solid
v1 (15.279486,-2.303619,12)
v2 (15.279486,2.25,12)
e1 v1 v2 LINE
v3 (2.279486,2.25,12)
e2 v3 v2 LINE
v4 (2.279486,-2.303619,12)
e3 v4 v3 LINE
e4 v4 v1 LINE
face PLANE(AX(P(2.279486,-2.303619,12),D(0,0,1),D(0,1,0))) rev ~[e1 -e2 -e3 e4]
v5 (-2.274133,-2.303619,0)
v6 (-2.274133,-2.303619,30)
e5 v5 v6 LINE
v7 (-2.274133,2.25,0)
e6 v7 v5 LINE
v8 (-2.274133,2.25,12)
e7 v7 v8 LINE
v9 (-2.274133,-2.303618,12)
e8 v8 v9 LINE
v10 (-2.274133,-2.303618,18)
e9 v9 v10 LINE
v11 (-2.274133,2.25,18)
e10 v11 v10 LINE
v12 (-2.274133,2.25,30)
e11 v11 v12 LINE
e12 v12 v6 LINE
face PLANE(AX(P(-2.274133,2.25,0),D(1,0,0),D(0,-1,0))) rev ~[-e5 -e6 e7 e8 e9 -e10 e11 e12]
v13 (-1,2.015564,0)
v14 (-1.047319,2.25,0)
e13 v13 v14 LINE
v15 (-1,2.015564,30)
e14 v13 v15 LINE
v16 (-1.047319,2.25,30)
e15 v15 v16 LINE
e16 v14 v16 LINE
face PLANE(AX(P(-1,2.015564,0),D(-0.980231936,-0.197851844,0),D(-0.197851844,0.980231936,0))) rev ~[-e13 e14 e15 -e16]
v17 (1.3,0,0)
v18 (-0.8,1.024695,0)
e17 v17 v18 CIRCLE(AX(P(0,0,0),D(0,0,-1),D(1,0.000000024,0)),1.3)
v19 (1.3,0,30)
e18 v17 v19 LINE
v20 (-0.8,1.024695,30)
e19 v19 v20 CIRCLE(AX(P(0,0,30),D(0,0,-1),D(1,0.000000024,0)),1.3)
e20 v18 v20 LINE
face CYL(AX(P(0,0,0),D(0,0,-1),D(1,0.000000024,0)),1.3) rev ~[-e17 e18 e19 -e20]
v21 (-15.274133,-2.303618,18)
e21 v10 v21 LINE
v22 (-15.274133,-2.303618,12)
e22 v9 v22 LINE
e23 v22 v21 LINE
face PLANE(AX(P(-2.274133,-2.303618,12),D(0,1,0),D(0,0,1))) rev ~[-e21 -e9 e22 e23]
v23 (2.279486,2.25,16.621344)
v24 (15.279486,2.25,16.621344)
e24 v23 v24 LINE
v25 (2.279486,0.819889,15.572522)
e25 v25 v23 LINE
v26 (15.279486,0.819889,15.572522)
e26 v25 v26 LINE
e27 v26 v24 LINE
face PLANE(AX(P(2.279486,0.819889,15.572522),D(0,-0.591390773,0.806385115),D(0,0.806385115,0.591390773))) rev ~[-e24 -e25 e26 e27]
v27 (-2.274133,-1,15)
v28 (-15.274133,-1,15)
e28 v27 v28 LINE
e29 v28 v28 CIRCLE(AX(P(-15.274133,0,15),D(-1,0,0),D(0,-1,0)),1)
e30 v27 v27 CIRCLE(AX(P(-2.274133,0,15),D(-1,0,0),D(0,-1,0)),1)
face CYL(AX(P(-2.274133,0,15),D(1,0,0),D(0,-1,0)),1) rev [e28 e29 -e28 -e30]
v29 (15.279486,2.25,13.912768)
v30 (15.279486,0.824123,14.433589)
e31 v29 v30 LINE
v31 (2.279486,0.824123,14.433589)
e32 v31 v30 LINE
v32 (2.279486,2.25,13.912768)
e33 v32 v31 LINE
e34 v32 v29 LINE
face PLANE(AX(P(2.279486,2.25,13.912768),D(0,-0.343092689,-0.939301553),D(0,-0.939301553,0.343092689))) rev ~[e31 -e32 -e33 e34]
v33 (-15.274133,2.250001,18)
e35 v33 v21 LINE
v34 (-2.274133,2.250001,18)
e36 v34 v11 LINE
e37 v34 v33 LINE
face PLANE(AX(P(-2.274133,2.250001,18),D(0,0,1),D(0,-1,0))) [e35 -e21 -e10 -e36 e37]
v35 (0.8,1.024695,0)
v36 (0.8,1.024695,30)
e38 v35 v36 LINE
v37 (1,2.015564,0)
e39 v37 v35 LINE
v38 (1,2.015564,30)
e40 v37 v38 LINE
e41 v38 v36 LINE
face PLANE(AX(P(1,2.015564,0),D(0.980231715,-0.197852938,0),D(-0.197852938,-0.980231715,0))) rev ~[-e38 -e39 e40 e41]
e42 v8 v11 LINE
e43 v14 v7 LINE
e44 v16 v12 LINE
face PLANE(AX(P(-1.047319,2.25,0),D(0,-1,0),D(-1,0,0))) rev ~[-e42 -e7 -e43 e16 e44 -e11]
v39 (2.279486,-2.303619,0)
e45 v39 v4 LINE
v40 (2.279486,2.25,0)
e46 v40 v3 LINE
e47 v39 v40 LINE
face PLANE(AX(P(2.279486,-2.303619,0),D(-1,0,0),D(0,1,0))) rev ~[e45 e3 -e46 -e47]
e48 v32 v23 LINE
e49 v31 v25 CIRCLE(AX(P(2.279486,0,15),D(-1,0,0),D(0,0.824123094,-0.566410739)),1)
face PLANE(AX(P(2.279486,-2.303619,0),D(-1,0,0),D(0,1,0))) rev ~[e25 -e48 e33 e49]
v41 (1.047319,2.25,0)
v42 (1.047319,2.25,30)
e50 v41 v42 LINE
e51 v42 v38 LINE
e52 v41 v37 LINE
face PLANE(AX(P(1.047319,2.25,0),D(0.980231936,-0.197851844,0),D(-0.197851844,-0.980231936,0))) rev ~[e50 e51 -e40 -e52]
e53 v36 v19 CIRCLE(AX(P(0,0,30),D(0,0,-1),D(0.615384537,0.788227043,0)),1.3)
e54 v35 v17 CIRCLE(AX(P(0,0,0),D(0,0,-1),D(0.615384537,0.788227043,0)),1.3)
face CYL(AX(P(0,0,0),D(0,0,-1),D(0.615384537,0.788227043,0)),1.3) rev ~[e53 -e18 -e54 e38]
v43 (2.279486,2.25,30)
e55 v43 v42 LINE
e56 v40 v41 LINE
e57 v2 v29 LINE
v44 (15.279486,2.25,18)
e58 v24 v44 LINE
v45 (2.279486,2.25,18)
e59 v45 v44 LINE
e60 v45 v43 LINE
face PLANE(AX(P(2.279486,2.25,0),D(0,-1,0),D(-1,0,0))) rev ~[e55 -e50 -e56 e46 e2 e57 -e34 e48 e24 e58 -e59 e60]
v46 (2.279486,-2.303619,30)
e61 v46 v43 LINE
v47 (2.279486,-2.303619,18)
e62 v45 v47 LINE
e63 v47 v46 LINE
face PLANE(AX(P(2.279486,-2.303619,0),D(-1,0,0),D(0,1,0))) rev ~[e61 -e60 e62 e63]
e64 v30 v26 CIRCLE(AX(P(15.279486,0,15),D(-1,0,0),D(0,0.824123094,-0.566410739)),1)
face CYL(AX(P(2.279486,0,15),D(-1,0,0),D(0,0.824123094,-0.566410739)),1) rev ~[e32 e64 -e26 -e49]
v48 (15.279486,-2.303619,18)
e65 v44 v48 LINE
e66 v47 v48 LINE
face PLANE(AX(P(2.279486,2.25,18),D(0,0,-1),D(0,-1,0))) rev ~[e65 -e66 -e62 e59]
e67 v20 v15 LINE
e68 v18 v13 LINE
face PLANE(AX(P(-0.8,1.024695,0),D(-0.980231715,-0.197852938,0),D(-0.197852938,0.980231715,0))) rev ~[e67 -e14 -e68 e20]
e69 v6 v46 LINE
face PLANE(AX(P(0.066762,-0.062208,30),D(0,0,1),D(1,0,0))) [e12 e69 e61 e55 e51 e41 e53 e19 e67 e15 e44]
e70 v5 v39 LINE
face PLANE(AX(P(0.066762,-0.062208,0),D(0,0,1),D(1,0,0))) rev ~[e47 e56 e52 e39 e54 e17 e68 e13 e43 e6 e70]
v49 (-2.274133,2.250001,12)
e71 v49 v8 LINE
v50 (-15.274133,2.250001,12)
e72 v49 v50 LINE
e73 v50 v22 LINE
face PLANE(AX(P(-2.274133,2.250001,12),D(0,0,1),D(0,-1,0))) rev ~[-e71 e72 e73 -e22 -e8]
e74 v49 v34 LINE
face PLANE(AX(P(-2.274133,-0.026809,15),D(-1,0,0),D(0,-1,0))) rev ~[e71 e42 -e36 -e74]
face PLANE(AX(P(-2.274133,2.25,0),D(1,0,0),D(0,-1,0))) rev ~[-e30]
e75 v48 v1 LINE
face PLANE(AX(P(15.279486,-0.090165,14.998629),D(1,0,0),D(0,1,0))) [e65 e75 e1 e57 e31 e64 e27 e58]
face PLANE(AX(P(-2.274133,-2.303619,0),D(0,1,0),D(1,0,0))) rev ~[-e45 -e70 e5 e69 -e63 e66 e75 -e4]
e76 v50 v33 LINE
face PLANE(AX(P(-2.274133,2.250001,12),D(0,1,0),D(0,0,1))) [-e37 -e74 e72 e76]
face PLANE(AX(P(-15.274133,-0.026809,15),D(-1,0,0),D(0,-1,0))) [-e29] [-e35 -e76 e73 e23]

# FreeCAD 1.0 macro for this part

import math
import FreeCAD as App
import Part
import Sketcher
Q = App.Units.Quantity

doc = App.newDocument("Part")
body = doc.addObject("PartDesign::Body", "Body")

sketch1 = body.newObject("Sketcher::SketchObject", "Sketch")
sketch1.AttachmentSupport = (doc.getObject("XY_Plane"), [""])
sketch1.MapMode = "FlatFace"
sketch1.addGeometry([
    Part.ArcOfCircle(Part.Circle(App.Vector(0, 0, 0), App.Vector(0, 0, 1), 1.3), math.radians(0), math.radians(52)),
    Part.ArcOfCircle(Part.Circle(App.Vector(0, 0, 0), App.Vector(0, 0, 1), 1.3), math.radians(128), math.radians(360)),
    Part.LineSegment(App.Vector(-0.8, 1.02, 0), App.Vector(-1, 2.02, 0)),
    Part.LineSegment(App.Vector(-1, 2.02, 0), App.Vector(-1.05, 2.25, 0)),
    Part.LineSegment(App.Vector(-1.05, 2.25, 0), App.Vector(-2.27, 2.25, 0)),
    Part.LineSegment(App.Vector(-2.27, 2.25, 0), App.Vector(-2.27, -2.3, 0)),
    Part.LineSegment(App.Vector(-2.27, -2.3, 0), App.Vector(2.28, -2.3, 0)),
    Part.LineSegment(App.Vector(2.28, -2.3, 0), App.Vector(2.28, 2.25, 0)),
    Part.LineSegment(App.Vector(2.28, 2.25, 0), App.Vector(1.05, 2.25, 0)),
    Part.LineSegment(App.Vector(1.05, 2.25, 0), App.Vector(1, 2.02, 0)),
    Part.LineSegment(App.Vector(1, 2.02, 0), App.Vector(0.8, 1.02, 0)),
], False)
sketch1.addConstraint([
    Sketcher.Constraint("Tangent", 0, 1, 1, 2),
    Sketcher.Constraint("Coincident", 1, 1, 2, 1),
    Sketcher.Constraint("Coincident", 2, 2, 3, 1),
    Sketcher.Constraint("Coincident", 3, 2, 4, 1),
    Sketcher.Constraint("Coincident", 4, 2, 5, 1),
    Sketcher.Constraint("Coincident", 5, 2, 6, 1),
    Sketcher.Constraint("Coincident", 6, 2, 7, 1),
    Sketcher.Constraint("Coincident", 7, 2, 8, 1),
    Sketcher.Constraint("Coincident", 8, 2, 9, 1),
    Sketcher.Constraint("Coincident", 9, 2, 10, 1),
    Sketcher.Constraint("Coincident", 10, 2, 0, 2),
    Sketcher.Constraint("Horizontal", 4),
    Sketcher.Constraint("Vertical", 5),
    Sketcher.Constraint("Horizontal", 6),
    Sketcher.Constraint("Vertical", 7),
    Sketcher.Constraint("Horizontal", 8),
    Sketcher.Constraint("Coincident", 0, 3, -1, 1),
    Sketcher.Constraint("Equal", 0, 1),
    Sketcher.Constraint("Symmetric", 3, 2, 8, 2, -2),
    Sketcher.Constraint("Symmetric", 2, 2, 9, 2, -2),
    Sketcher.Constraint("PointOnObject", 0, 1, -1),
    Sketcher.Constraint("Parallel", 2, 3),
    Sketcher.Constraint("Parallel", 9, 10),
    Sketcher.Constraint("Equal", 6, 5),
    Sketcher.Constraint("Radius", 0, Q("1.3 mm")),
    Sketcher.Constraint("DistanceX", 2, 2, -1, 1, Q("1 mm")),
    Sketcher.Constraint("DistanceX", 1, 1, -1, 1, Q("0.8 mm")),
    Sketcher.Constraint("DistanceY", -1, 1, 3, 2, Q("2.25 mm")),
    Sketcher.Constraint("DistanceX", 6, 1, 6, 2, Q("4.553619 mm")),
    Sketcher.Constraint("Distance", 2, Q("1.010852 mm")),
    Sketcher.Constraint("DistanceX", 4, 2, 4, 1, Q("1.226814 mm")),
])
pad1 = body.newObject("PartDesign::Pad", "Pad")
pad1.Profile = sketch1
pad1.Length = 30

sketch2 = body.newObject("Sketcher::SketchObject", "Sketch001")
sketch2.AttachmentSupport = (doc.getObject("YZ_Plane"), [""])
sketch2.MapMode = "FlatFace"
sketch2.AttachmentOffset = App.Placement(App.Vector(0, 0, 2.279486), App.Rotation())
sketch2.addGeometry([
    Part.ArcOfCircle(Part.Circle(App.Vector(0, 15, 0), App.Vector(0, 0, 1), 1), math.radians(35), math.radians(325)),
    Part.LineSegment(App.Vector(0.8, 15.6, 0), App.Vector(2.2, 16.6, 0)),
    Part.LineSegment(App.Vector(2.2, 16.6, 0), App.Vector(2.2, 18, 0)),
    Part.LineSegment(App.Vector(2.2, 18, 0), App.Vector(-2.3, 18, 0)),
    Part.LineSegment(App.Vector(-2.3, 18, 0), App.Vector(-2.3, 12, 0)),
    Part.LineSegment(App.Vector(-2.3, 12, 0), App.Vector(2.2, 12, 0)),
    Part.LineSegment(App.Vector(2.2, 12, 0), App.Vector(2.2, 13.9, 0)),
    Part.LineSegment(App.Vector(2.2, 13.9, 0), App.Vector(0.8, 14.4, 0)),
], False)
sketch2.addConstraint([
    Sketcher.Constraint("Coincident", 0, 1, 1, 1),
    Sketcher.Constraint("Coincident", 1, 2, 2, 1),
    Sketcher.Constraint("Coincident", 2, 2, 3, 1),
    Sketcher.Constraint("Coincident", 3, 2, 4, 1),
    Sketcher.Constraint("Coincident", 4, 2, 5, 1),
    Sketcher.Constraint("Coincident", 5, 2, 6, 1),
    Sketcher.Constraint("Coincident", 6, 2, 7, 1),
    Sketcher.Constraint("Coincident", 7, 2, 0, 2),
    Sketcher.Constraint("Vertical", 2),
    Sketcher.Constraint("Horizontal", 3),
    Sketcher.Constraint("Vertical", 4),
    Sketcher.Constraint("Horizontal", 5),
    Sketcher.Constraint("Vertical", 6),
    Sketcher.Constraint("PointOnObject", 0, 3, -2),
    Sketcher.Constraint("Vertical", 2, 2, 5, 2),
    Sketcher.Constraint("Radius", 0, Q("1 mm")),
    Sketcher.Constraint("DistanceY", 4, 2, 4, 1, Q("6 mm")),
    Sketcher.Constraint("DistanceY", -1, 1, 0, 3, Q("15 mm")),
    Sketcher.Constraint("DistanceY", -1, 1, 2, 2, Q("18 mm")),
    Sketcher.Constraint("DistanceX", -1, 1, 1, 2, Q("2.25 mm")),
    Sketcher.Constraint("DistanceX", 3, 2, 3, 1, Q("4.553619 mm")),
    Sketcher.Constraint("Distance", 7, Q("1.518018 mm")),
    Sketcher.Constraint("DistanceY", 2, 1, 2, 2, Q("1.378656 mm")),
    Sketcher.Constraint("DistanceY", 6, 1, 6, 2, Q("1.912768 mm")),
    Sketcher.Constraint("DistanceX", -1, 1, 0, 1, Q("0.819889 mm")),
])
pad2 = body.newObject("PartDesign::Pad", "Pad001")
pad2.Profile = sketch2
pad2.Length = 13

sketch3 = body.newObject("Sketcher::SketchObject", "Sketch002")
sketch3.AttachmentSupport = (doc.getObject("YZ_Plane"), [""])
sketch3.MapMode = "FlatFace"
sketch3.AttachmentOffset = App.Placement(App.Vector(0, 0, -2.274133), App.Rotation())
sketch3.addGeometry([
    Part.LineSegment(App.Vector(2.3, 18, 0), App.Vector(2.3, 12, 0)),
    Part.LineSegment(App.Vector(2.3, 12, 0), App.Vector(-2.3, 12, 0)),
    Part.LineSegment(App.Vector(-2.3, 12, 0), App.Vector(-2.3, 18, 0)),
    Part.LineSegment(App.Vector(-2.3, 18, 0), App.Vector(2.3, 18, 0)),
    Part.Circle(App.Vector(0, 15, 0), App.Vector(0, 0, 1), 1),
], False)
sketch3.addConstraint([
    Sketcher.Constraint("Coincident", 0, 2, 1, 1),
    Sketcher.Constraint("Coincident", 1, 2, 2, 1),
    Sketcher.Constraint("Coincident", 2, 2, 3, 1),
    Sketcher.Constraint("Coincident", 3, 2, 0, 1),
    Sketcher.Constraint("Vertical", 0),
    Sketcher.Constraint("Horizontal", 1),
    Sketcher.Constraint("Vertical", 2),
    Sketcher.Constraint("Horizontal", 3),
    Sketcher.Constraint("PointOnObject", 4, 3, -2),
    Sketcher.Constraint("Diameter", 4, Q("2 mm")),
    Sketcher.Constraint("DistanceY", 0, 2, 0, 1, Q("6 mm")),
    Sketcher.Constraint("DistanceY", -1, 1, 4, 3, Q("15 mm")),
    Sketcher.Constraint("DistanceY", -1, 1, 0, 2, Q("12 mm")),
    Sketcher.Constraint("DistanceX", -1, 1, 0, 2, Q("2.250001 mm")),
    Sketcher.Constraint("DistanceX", 1, 2, 1, 1, Q("4.553619 mm")),
])
pad3 = body.newObject("PartDesign::Pad", "Pad002")
pad3.Profile = sketch3
pad3.Length = 13
pad3.Reversed = True

doc.recompute()
